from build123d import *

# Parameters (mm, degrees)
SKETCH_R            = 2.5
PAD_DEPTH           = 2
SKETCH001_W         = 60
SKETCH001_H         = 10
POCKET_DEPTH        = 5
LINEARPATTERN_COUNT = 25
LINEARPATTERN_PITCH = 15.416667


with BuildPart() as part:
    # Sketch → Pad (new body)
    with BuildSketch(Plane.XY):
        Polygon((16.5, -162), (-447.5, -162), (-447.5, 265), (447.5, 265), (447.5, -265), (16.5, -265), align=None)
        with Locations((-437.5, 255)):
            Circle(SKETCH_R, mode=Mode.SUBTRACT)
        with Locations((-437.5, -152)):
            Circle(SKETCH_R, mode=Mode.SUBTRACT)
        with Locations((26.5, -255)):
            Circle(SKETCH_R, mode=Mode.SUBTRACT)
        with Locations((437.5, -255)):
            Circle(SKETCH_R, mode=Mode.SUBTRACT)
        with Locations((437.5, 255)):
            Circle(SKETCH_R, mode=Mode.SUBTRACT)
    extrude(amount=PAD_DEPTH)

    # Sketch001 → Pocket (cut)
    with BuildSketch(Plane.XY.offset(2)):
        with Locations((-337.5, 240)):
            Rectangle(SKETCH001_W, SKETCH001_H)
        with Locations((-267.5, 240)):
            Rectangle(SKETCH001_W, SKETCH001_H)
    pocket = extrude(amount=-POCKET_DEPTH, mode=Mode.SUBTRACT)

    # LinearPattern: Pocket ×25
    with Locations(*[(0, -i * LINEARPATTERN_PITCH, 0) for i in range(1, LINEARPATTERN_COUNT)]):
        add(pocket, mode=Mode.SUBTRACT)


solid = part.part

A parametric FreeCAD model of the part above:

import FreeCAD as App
import Part
import Sketcher
from FreeCAD import Vector

doc = App.newDocument("Part")
params = doc.addObject("Spreadsheet::Sheet", "Params")
for row, (alias, value) in enumerate([
    ("sketch1_diameter", "5 mm"),
    ("sketch1_width", "464 mm"),
    ("sketch1_width2", "431 mm"),
    ("sketch1_height", "103 mm"),
    ("sketch1_height2", "530 mm"),
    ("pad1_length", "2 mm"),
    ("sketch2_width", "60 mm"),
    ("sketch2_height", "10 mm"),
    ("pocket1_length", "5 mm"),
    ("linearpattern_pitch", "15.416667 mm"),
], start=1):
    params.set(f"A{row}", alias)
    params.set(f"B{row}", "=" + value)
    params.setAlias(f"B{row}", alias)

body = doc.addObject("PartDesign::Body", "Body")

# Sketch on XY plane
sketch1 = body.newObject("Sketcher::SketchObject", "Sketch")
sketch1.AttachmentSupport = (doc.getObject("XY_Plane"), [""])
sketch1.MapMode = "FlatFace"
sketch1.addGeometry([
    Part.LineSegment(Vector(-447.5, -162, 0), Vector(16.5, -162, 0)),  # 0
    Part.LineSegment(Vector(16.5, -162, 0), Vector(16.5, -265, 0)),  # 1
    Part.LineSegment(Vector(16.5, -265, 0), Vector(447.5, -265, 0)),  # 2
    Part.LineSegment(Vector(447.5, -265, 0), Vector(447.5, 265, 0)),  # 3
    Part.LineSegment(Vector(447.5, 265, 0), Vector(-447.5, 265, 0)),  # 4
    Part.LineSegment(Vector(-447.5, 265, 0), Vector(-447.5, -162, 0)),  # 5
    Part.Circle(Vector(437.5, -255, 0), Vector(0, 0, 1), 2.5),  # 6
    Part.Circle(Vector(26.5, -255, 0), Vector(0, 0, 1), 2.5),  # 7
    Part.Circle(Vector(-437.5, -152, 0), Vector(0, 0, 1), 2.5),  # 8
    Part.Circle(Vector(437.5, 255, 0), Vector(0, 0, 1), 2.5),  # 9
    Part.Circle(Vector(-437.5, 255, 0), Vector(0, 0, 1), 2.5),  # 10
], False)
sketch1.addConstraint([
    Sketcher.Constraint("Coincident", 0, 2, 1, 1),
    Sketcher.Constraint("Coincident", 1, 2, 2, 1),
    Sketcher.Constraint("Coincident", 2, 2, 3, 1),
    Sketcher.Constraint("Coincident", 3, 2, 4, 1),
    Sketcher.Constraint("Coincident", 4, 2, 5, 1),
    Sketcher.Constraint("Coincident", 5, 2, 0, 1),
    Sketcher.Constraint("Horizontal", 0),
    Sketcher.Constraint("Vertical", 1),
    Sketcher.Constraint("Horizontal", 2),
    Sketcher.Constraint("Vertical", 3),
    Sketcher.Constraint("Horizontal", 4),
    Sketcher.Constraint("Vertical", 5),
    Sketcher.Constraint("Equal", 6, 7),
    Sketcher.Constraint("Equal", 7, 8),
    Sketcher.Constraint("Equal", 8, 9),
    Sketcher.Constraint("Equal", 9, 10),
    Sketcher.Constraint("Symmetric", 6, 3, 10, 3, -1, 1),
    Sketcher.Constraint("Symmetric", 2, 2, 4, 2, -1, 1),
    Sketcher.Constraint("Symmetric", 9, 3, 10, 3, -2),
    Sketcher.Constraint("Horizontal", 6, 3, 7, 3),
    Sketcher.Constraint("Vertical", 8, 3, 10, 3),
    Sketcher.Constraint("Diameter", 6, 5.0),
    Sketcher.Constraint("DistanceX", 0, 1, 0, 2, 464.0),
    Sketcher.Constraint("DistanceX", 2, 1, 2, 2, 431.0),
    Sketcher.Constraint("DistanceY", 1, 2, 1, 1, 103.0),
    Sketcher.Constraint("DistanceY", 3, 1, 3, 2, 530.0),
    Sketcher.Constraint("DistanceY", 6, 3, -1, 1, 255.0),
    Sketcher.Constraint("DistanceY", 8, 3, -1, 1, 152.0),
    Sketcher.Constraint("DistanceX", 7, 3, 6, 3, 411.0),
    Sketcher.Constraint("DistanceX", 8, 3, 7, 3, 464.0),
])
sketch1.setExpression("Constraints[21]", "Params.sketch1_diameter")
sketch1.setExpression("Constraints[22]", "Params.sketch1_width")
sketch1.setExpression("Constraints[23]", "Params.sketch1_width2")
sketch1.setExpression("Constraints[24]", "Params.sketch1_height")
sketch1.setExpression("Constraints[25]", "Params.sketch1_height2")
pad1 = body.newObject("PartDesign::Pad", "Pad")
pad1.Profile = sketch1
pad1.setExpression("Length", "Params.pad1_length")

# Sketch on XY plane
sketch2 = body.newObject("Sketcher::SketchObject", "Sketch001")
sketch2.AttachmentSupport = (doc.getObject("XY_Plane"), [""])
sketch2.MapMode = "FlatFace"
sketch2.AttachmentOffset = App.Placement(Vector(0, 0, 2), App.Rotation())
sketch2.addGeometry([
    Part.LineSegment(Vector(-368, 245, 0), Vector(-368, 235, 0)),  # 0
    Part.LineSegment(Vector(-368, 235, 0), Vector(-308, 235, 0)),  # 1
    Part.LineSegment(Vector(-308, 235, 0), Vector(-308, 245, 0)),  # 2
    Part.LineSegment(Vector(-308, 245, 0), Vector(-368, 245, 0)),  # 3
    Part.LineSegment(Vector(-298, 245, 0), Vector(-298, 235, 0)),  # 4
    Part.LineSegment(Vector(-298, 235, 0), Vector(-238, 235, 0)),  # 5
    Part.LineSegment(Vector(-238, 235, 0), Vector(-238, 245, 0)),  # 6
    Part.LineSegment(Vector(-238, 245, 0), Vector(-298, 245, 0)),  # 7
], False)
sketch2.addConstraint([
    Sketcher.Constraint("Coincident", 0, 2, 1, 1),
    Sketcher.Constraint("Coincident", 1, 2, 2, 1),
    Sketcher.Constraint("Coincident", 2, 2, 3, 1),
    Sketcher.Constraint("Coincident", 3, 2, 0, 1),
    Sketcher.Constraint("Coincident", 4, 2, 5, 1),
    Sketcher.Constraint("Coincident", 5, 2, 6, 1),
    Sketcher.Constraint("Coincident", 6, 2, 7, 1),
    Sketcher.Constraint("Coincident", 7, 2, 4, 1),
    Sketcher.Constraint("Vertical", 0),
    Sketcher.Constraint("Horizontal", 1),
    Sketcher.Constraint("Vertical", 2),
    Sketcher.Constraint("Horizontal", 3),
    Sketcher.Constraint("Vertical", 4),
    Sketcher.Constraint("Horizontal", 5),
    Sketcher.Constraint("Vertical", 6),
    Sketcher.Constraint("Horizontal", 7),
    Sketcher.Constraint("Horizontal", 1, 2, 4, 2),
    Sketcher.Constraint("Horizontal", 3, 2, 6, 2),
    Sketcher.Constraint("Equal", 3, 5),
    Sketcher.Constraint("DistanceX", 1, 1, 1, 2, 60.0),
    Sketcher.Constraint("DistanceY", 0, 2, 0, 1, 10.0),
    Sketcher.Constraint("DistanceY", -1, 1, 0, 2, 235.0),
    Sketcher.Constraint("DistanceX", 1, 2, 4, 2, 10.0),
    Sketcher.Constraint("DistanceX", 0, 2, -1, 1, 367.5),
])
sketch2.setExpression("Constraints[19]", "Params.sketch2_width")
sketch2.setExpression("Constraints[20]", "Params.sketch2_height")
pocket1 = body.newObject("PartDesign::Pocket", "Pocket")
pocket1.Profile = sketch2
pocket1.setExpression("Length", "Params.pocket1_length")
doc.recompute()

linearpattern = body.newObject("PartDesign::LinearPattern", "LinearPattern")
linearpattern.Originals = [pocket1]
linearpattern.Direction = (doc.getObject("Y_Axis"), [""])
linearpattern.Mode = "offset"
linearpattern.setExpression("Offset", "Params.linearpattern_pitch")
linearpattern.Occurrences = 25
linearpattern.Reversed = True
body.Tip = linearpattern

doc.recompute()
